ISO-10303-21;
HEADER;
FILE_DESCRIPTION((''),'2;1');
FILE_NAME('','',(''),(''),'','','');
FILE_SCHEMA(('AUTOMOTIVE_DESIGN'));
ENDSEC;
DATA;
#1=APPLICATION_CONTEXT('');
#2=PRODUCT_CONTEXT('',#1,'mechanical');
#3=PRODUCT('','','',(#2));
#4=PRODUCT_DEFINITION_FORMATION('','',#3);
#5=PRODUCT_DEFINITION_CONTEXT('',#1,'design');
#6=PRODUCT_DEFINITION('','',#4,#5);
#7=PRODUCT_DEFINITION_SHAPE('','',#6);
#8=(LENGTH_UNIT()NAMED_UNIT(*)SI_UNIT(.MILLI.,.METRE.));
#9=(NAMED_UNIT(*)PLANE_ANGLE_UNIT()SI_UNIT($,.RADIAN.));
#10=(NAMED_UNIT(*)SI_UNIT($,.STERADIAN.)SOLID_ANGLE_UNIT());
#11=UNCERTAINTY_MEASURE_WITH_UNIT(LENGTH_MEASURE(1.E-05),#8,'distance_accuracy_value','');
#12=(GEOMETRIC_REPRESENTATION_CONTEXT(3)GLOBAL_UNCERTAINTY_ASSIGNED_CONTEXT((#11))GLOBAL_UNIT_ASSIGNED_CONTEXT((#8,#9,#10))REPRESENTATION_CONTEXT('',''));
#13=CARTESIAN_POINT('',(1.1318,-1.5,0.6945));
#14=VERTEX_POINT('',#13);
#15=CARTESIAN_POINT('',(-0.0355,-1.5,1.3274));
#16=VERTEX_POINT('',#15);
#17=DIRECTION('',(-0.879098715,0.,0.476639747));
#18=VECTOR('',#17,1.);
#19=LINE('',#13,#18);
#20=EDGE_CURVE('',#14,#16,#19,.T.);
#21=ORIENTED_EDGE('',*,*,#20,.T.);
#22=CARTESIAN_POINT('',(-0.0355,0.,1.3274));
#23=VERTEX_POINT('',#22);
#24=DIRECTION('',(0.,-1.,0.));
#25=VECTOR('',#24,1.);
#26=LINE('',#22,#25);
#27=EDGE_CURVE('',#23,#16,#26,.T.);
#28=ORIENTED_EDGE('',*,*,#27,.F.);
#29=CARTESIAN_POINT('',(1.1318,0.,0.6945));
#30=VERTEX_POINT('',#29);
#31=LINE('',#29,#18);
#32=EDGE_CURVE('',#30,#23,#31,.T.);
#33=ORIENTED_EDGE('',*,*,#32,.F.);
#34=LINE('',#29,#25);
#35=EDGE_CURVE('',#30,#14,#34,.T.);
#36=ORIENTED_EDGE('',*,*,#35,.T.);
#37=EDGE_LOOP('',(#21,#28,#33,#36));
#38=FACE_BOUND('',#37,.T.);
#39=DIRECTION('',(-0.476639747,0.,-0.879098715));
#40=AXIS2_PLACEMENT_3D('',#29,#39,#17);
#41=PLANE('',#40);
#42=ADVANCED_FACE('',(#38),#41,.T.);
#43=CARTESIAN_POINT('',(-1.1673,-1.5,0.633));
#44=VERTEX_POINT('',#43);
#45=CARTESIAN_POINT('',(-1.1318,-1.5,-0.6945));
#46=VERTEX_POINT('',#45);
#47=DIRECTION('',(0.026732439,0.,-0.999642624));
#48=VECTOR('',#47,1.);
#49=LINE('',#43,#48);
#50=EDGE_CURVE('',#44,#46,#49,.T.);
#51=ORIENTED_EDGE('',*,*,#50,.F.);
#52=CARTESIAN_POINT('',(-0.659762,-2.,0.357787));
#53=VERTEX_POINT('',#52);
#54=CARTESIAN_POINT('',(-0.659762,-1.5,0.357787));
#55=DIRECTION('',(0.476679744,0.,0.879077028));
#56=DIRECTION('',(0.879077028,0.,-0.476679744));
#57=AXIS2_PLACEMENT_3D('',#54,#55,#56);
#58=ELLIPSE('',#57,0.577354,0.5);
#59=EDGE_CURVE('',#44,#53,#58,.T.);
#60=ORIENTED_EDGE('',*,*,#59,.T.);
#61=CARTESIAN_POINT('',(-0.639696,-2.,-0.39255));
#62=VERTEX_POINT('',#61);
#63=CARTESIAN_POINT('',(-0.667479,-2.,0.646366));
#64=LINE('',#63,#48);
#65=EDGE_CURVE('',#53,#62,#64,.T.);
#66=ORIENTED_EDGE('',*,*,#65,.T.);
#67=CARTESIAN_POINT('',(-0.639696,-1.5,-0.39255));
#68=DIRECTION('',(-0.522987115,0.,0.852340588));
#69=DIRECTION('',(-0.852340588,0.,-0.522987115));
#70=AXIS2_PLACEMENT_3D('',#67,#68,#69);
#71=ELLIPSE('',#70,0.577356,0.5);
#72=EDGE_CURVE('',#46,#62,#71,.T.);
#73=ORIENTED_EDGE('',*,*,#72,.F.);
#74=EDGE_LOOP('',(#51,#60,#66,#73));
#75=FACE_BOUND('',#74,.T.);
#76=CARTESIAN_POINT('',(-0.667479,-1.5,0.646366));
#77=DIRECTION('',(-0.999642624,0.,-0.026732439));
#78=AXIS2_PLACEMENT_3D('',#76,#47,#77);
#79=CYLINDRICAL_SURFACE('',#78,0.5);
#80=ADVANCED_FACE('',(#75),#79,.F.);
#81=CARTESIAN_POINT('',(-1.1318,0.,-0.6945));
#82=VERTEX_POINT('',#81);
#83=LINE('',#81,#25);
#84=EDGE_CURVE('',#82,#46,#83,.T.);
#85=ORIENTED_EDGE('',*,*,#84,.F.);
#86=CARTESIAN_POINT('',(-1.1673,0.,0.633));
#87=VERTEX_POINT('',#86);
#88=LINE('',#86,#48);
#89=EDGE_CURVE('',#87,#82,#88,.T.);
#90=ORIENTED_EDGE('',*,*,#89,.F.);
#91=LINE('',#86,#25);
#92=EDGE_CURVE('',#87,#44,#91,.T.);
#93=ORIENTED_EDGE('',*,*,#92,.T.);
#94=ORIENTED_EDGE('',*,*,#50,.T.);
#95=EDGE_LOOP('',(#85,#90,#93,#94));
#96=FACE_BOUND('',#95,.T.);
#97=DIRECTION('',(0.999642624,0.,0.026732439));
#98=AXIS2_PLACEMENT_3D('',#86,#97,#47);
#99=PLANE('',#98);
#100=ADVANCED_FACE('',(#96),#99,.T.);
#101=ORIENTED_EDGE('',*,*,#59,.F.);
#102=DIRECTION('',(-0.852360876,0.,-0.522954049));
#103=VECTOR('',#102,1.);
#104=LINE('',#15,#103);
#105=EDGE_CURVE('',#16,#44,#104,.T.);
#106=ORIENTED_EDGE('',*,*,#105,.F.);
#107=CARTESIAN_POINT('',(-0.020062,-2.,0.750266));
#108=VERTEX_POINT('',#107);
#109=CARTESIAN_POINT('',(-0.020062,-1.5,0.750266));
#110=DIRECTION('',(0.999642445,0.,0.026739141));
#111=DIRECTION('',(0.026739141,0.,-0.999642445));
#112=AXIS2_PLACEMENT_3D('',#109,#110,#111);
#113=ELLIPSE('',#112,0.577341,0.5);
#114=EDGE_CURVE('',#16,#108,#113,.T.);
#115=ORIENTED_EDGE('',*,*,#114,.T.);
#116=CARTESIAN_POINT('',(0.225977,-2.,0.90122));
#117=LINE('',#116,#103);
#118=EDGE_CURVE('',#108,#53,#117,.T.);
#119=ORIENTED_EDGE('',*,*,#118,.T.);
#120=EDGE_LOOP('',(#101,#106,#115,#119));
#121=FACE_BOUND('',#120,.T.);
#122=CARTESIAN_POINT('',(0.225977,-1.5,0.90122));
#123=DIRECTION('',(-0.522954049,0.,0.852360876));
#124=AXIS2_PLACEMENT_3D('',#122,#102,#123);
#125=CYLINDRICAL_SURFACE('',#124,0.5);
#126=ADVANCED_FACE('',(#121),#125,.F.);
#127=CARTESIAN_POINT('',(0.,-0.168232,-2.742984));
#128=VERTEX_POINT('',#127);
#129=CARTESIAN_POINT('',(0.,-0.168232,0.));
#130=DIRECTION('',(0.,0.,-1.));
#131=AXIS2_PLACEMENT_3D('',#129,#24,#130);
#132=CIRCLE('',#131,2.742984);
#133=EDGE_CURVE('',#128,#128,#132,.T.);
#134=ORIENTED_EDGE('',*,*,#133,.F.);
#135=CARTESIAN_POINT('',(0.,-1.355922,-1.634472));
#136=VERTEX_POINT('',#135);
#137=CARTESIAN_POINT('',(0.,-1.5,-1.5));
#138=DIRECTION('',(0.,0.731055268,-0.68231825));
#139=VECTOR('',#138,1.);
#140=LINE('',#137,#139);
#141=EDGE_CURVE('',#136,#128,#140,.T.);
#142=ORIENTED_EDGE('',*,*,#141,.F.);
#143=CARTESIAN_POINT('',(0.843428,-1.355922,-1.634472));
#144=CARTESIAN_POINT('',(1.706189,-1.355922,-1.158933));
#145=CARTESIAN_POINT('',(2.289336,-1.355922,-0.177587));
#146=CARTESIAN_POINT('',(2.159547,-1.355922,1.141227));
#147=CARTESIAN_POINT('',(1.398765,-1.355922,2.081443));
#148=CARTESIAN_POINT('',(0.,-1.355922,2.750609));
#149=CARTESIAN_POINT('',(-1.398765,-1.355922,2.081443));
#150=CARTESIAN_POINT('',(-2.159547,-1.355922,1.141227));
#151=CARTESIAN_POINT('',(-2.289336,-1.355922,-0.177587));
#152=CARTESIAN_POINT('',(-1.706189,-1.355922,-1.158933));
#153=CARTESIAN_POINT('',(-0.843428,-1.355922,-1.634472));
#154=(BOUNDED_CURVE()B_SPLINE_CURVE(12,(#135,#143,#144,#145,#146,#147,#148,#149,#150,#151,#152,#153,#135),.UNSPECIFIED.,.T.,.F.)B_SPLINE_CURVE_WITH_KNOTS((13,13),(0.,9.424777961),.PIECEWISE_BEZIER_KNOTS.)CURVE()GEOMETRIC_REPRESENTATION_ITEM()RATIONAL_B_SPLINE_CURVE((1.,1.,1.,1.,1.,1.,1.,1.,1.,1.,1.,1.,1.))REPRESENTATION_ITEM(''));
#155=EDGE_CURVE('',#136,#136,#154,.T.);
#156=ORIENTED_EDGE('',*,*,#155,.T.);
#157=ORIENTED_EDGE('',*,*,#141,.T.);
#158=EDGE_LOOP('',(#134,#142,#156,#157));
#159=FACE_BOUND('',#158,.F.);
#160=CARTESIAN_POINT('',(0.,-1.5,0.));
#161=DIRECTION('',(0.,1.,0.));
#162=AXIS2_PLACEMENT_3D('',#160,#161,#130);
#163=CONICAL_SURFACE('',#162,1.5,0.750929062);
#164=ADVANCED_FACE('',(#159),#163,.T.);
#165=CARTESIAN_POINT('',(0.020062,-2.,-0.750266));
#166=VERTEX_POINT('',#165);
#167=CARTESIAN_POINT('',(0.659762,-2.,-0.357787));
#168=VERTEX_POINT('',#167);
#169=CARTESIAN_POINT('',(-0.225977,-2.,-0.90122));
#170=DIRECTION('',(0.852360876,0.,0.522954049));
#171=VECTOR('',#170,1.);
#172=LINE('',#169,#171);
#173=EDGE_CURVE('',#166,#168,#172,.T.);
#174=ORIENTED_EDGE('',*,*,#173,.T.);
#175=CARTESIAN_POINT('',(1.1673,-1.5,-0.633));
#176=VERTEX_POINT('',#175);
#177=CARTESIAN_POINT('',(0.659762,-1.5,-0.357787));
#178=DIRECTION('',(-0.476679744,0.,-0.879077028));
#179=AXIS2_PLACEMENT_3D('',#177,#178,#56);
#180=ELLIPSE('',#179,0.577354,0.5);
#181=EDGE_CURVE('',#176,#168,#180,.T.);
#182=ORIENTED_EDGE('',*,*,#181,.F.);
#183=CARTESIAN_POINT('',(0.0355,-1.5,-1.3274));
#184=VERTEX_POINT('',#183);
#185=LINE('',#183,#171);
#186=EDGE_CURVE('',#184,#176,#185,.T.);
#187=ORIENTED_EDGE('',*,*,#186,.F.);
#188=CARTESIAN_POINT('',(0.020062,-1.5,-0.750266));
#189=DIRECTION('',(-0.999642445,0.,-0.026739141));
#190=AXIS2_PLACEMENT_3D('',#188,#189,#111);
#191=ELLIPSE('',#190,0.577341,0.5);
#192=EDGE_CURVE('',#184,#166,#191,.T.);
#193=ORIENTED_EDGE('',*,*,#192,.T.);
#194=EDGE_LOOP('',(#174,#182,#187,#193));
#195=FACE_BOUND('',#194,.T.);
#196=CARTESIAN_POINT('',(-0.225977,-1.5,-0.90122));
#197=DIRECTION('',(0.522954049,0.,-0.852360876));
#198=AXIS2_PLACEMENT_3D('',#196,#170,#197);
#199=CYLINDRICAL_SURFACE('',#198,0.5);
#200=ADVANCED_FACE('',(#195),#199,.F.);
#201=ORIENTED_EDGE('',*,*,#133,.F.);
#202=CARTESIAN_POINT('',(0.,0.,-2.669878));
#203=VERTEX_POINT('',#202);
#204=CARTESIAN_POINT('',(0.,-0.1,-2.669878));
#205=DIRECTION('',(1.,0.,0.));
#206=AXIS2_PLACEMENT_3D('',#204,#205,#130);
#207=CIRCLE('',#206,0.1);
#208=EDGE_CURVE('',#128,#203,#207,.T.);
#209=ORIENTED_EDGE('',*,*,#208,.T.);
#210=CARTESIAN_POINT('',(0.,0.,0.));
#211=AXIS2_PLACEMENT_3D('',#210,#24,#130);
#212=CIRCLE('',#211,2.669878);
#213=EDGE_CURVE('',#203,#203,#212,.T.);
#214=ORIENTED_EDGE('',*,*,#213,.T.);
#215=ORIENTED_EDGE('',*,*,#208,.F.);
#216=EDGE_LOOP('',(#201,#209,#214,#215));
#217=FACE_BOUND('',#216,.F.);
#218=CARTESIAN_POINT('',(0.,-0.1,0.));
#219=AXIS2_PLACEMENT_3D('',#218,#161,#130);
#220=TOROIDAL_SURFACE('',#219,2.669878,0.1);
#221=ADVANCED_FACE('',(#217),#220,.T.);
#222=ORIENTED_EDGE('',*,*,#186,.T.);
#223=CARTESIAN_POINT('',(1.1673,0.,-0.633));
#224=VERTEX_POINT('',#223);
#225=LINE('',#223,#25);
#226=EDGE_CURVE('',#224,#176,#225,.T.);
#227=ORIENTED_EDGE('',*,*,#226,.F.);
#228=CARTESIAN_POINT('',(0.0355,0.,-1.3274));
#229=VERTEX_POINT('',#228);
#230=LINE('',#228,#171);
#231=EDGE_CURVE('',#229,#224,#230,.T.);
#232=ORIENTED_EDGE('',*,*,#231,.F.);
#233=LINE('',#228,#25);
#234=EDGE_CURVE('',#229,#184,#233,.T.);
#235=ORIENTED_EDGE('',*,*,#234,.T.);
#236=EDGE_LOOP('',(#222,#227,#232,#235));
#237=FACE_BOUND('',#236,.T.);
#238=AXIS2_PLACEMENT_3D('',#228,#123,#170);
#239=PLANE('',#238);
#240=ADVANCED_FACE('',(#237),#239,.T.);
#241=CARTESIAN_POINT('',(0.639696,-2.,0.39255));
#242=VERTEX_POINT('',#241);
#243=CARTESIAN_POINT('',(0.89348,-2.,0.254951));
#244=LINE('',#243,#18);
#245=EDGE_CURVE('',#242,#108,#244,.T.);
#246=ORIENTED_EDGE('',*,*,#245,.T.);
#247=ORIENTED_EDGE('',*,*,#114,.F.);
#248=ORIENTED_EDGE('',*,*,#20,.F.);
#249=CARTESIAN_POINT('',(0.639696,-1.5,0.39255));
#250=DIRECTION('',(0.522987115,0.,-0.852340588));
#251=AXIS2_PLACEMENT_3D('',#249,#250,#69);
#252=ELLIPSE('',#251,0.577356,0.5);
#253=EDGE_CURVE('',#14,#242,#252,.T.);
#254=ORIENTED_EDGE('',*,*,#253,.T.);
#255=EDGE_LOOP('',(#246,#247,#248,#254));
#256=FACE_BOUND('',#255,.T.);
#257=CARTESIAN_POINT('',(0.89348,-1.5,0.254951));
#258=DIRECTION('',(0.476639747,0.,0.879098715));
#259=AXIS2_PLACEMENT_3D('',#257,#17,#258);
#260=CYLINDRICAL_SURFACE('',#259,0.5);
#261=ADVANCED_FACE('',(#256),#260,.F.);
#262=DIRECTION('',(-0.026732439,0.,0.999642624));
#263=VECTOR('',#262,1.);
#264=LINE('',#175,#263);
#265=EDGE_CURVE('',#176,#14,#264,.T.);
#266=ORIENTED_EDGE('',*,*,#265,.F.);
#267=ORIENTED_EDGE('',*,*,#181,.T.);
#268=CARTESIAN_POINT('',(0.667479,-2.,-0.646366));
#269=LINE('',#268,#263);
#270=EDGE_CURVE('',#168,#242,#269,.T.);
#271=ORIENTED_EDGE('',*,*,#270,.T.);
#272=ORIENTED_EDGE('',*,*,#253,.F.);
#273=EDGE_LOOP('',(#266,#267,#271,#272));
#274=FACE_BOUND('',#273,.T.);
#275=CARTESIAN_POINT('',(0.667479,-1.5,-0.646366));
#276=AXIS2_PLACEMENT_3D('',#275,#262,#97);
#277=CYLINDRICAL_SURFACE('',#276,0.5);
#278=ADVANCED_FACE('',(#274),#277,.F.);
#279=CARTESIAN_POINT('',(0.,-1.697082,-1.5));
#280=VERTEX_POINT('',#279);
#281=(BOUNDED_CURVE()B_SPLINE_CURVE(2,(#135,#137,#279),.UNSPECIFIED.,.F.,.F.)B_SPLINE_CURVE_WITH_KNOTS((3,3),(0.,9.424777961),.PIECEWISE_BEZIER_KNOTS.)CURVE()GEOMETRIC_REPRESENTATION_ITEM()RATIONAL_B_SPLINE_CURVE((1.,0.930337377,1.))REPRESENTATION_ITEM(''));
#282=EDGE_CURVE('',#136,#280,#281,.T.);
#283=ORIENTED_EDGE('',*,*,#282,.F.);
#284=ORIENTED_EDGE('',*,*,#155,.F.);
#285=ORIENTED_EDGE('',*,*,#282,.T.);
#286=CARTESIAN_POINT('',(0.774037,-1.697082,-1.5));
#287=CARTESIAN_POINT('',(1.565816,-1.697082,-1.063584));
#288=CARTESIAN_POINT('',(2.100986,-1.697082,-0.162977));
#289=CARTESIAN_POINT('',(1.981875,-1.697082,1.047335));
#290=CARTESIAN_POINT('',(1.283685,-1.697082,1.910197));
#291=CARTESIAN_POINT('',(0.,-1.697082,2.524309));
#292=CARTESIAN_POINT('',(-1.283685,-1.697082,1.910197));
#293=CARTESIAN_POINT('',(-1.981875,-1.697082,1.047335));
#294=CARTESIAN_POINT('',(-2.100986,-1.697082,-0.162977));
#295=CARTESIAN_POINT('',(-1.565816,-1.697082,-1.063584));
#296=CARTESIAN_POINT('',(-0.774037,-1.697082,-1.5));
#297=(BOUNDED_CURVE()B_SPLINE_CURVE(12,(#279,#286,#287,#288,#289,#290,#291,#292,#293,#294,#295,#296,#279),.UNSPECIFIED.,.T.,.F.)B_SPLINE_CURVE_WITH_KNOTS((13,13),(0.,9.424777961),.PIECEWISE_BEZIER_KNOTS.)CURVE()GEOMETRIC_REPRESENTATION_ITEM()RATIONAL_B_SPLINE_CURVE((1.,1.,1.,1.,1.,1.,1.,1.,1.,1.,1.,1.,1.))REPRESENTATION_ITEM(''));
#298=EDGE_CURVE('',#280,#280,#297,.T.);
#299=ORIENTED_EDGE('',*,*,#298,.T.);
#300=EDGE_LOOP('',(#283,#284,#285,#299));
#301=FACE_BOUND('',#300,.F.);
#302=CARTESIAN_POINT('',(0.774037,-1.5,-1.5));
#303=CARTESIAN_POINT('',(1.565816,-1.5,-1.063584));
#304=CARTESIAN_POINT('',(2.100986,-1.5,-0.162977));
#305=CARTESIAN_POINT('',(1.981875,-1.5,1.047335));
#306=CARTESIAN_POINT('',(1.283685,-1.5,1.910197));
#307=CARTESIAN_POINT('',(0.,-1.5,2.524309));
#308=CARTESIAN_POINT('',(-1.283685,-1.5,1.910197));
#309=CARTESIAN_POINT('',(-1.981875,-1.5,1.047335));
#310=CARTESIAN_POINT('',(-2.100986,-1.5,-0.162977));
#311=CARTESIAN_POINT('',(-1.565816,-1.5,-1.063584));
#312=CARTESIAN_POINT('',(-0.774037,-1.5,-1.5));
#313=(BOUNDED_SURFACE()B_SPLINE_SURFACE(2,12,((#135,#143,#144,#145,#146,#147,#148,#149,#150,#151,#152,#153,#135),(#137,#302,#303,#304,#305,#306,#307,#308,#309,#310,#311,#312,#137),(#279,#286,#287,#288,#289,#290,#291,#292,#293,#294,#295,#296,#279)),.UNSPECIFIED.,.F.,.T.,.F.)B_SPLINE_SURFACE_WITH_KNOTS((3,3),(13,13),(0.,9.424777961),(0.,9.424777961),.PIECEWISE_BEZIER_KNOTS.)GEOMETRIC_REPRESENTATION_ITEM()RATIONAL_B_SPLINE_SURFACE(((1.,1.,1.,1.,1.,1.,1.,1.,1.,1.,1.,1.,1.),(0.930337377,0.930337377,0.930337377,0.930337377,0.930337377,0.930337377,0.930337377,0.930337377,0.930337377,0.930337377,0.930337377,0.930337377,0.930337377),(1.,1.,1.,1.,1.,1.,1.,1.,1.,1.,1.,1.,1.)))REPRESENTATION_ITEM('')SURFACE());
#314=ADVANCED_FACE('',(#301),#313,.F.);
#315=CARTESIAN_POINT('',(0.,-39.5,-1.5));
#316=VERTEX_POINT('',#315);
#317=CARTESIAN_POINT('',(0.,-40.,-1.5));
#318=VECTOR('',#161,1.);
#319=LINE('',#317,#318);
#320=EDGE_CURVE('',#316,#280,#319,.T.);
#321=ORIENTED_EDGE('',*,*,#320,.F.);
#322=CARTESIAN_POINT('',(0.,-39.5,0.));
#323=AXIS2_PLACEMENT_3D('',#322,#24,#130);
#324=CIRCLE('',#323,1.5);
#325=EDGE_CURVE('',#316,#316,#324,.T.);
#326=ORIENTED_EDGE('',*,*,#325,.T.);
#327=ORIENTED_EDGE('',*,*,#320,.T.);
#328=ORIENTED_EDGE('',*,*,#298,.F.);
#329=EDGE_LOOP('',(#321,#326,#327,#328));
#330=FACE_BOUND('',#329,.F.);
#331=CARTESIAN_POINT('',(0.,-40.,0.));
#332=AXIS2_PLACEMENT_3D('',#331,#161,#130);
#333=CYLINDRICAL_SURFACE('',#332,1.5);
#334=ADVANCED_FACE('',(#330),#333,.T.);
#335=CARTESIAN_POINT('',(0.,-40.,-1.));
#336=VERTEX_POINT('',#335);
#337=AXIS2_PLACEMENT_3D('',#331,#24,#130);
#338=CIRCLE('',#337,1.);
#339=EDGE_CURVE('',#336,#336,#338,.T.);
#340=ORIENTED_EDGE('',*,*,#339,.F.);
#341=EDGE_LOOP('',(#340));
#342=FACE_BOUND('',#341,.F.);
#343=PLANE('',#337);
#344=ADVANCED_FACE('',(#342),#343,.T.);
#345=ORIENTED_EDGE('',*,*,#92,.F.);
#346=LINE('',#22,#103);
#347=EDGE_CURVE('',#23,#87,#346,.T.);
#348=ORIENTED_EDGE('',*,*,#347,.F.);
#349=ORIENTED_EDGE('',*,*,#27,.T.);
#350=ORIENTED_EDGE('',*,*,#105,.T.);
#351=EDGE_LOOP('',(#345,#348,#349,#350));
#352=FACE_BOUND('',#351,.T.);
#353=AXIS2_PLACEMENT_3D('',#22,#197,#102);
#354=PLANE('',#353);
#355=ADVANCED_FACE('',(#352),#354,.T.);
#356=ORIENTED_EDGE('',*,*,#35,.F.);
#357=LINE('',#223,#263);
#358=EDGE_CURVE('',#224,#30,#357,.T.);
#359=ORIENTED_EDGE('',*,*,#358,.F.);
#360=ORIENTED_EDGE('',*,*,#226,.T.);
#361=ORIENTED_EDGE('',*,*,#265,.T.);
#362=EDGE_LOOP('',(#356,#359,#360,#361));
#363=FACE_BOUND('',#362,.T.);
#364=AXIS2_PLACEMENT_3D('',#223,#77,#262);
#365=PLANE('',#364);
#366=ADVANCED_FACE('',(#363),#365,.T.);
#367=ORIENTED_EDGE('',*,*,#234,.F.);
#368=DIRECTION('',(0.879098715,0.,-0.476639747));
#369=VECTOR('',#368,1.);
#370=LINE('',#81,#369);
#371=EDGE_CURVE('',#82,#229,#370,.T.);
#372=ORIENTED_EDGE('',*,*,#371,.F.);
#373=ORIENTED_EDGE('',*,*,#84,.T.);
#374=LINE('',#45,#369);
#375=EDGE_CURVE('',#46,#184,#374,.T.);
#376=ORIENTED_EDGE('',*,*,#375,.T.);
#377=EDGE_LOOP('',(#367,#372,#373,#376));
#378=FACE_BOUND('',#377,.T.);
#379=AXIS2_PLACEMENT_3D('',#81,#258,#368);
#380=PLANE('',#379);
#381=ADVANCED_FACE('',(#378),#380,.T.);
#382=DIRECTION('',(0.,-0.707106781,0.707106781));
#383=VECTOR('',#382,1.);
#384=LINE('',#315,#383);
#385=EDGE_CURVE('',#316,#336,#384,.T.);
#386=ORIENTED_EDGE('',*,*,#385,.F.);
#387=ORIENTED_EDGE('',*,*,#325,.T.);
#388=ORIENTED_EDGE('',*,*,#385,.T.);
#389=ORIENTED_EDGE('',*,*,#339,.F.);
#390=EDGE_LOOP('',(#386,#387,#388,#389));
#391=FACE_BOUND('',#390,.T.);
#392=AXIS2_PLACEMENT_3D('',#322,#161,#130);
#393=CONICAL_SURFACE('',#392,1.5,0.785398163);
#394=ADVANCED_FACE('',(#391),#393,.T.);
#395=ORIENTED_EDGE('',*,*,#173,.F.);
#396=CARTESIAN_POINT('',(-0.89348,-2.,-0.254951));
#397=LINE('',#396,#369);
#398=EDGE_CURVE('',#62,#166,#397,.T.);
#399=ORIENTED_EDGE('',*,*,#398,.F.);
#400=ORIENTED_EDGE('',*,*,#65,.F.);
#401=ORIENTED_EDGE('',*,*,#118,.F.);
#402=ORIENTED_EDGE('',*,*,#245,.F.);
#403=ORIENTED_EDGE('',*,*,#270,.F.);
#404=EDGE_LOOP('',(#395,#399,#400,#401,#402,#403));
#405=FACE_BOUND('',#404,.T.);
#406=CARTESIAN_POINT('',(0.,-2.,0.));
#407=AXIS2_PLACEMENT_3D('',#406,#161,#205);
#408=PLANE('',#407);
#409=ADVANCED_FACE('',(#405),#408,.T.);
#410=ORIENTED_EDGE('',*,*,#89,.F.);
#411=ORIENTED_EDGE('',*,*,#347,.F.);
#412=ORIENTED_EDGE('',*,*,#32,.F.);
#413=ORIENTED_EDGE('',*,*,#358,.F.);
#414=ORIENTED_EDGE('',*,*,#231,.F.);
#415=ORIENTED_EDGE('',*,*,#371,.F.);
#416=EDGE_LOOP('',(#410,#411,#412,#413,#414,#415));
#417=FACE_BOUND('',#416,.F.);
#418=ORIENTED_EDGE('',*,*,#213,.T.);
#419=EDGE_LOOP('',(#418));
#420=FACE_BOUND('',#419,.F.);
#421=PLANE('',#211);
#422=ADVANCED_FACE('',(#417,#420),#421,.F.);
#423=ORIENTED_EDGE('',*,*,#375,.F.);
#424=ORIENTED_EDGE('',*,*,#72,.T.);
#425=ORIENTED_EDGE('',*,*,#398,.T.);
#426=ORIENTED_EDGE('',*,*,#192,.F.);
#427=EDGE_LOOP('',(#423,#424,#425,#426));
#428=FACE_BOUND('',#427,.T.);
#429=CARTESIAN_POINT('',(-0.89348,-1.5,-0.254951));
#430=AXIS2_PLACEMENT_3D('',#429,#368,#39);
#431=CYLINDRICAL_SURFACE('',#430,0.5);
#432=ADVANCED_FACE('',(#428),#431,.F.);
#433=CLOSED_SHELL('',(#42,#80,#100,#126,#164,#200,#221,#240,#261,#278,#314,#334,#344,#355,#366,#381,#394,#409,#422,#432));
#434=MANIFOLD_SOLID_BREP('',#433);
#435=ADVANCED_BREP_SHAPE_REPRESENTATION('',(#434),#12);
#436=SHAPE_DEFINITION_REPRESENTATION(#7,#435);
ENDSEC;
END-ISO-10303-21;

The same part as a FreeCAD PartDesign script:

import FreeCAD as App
import Part
import Sketcher
from FreeCAD import Vector
Q = App.Units.Quantity


def edges_at(feature, points):
    """Names of the edges that pass closest to the given points."""
    edges = feature.Shape.Edges
    near = lambda p: min(range(len(edges)), key=lambda i: edges[i].distToShape(Part.Vertex(*p))[0])
    return sorted({f"Edge{near(p) + 1}" for p in points})


def add_polygon(sketch, points):
    """Adds a closed chain of lines whose ends are joined by coincident constraints."""
    first, n = sketch.GeometryCount, len(points)
    for a, b in zip(points, points[1:] + points[:1]):
        sketch.addGeometry(Part.LineSegment(App.Vector(*a, 0), App.Vector(*b, 0)), False)
    for i in range(n):
        sketch.addConstraint(Sketcher.Constraint("Coincident", first + i, 2, first + (i + 1) % n, 1))

doc = App.newDocument("Part")
body = doc.addObject("PartDesign::Body", "Body")

# Sketch on YZ plane
sketch1 = body.newObject("Sketcher::SketchObject", "Sketch")
sketch1.AttachmentSupport = (doc.getObject("YZ_Plane"), [""])
sketch1.MapMode = "FlatFace"
add_polygon(sketch1, [(-1.5, -1.5), (0, -2.9), (0, 0), (-40, 0), (-40, -1.5)])  # lines 0-4
sketch1.addConstraint(Sketcher.Constraint("Vertical", 1))
sketch1.addConstraint(Sketcher.Constraint("Horizontal", 2))
sketch1.addConstraint(Sketcher.Constraint("Vertical", 3))
sketch1.addConstraint(Sketcher.Constraint("Horizontal", 4))
sketch1.addConstraint(Sketcher.Constraint("Coincident", 1, 2, -1, 1))
sketch1.addConstraint(Sketcher.Constraint("DistanceX", 2, 2, 2, 1, 40.0))
sketch1.addConstraint(Sketcher.Constraint("DistanceY", 3, 2, 3, 1, 1.5))
sketch1.addConstraint(Sketcher.Constraint("DistanceX", 4, 2, -1, 1, 1.5))
sketch1.addConstraint(Sketcher.Constraint("DistanceY", 1, 1, 1, 2, 2.9))
revolution = body.newObject("PartDesign::Revolution", "Revolution")
revolution.Profile = sketch1
revolution.ReferenceAxis = (sketch1, ["H_Axis"])
revolution.Angle = 360

# Sketch on XZ plane
sketch2 = body.newObject("Sketcher::SketchObject", "Sketch001")
sketch2.AttachmentSupport = (doc.getObject("XZ_Plane"), [""])
sketch2.MapMode = "FlatFace"
add_polygon(sketch2, [(-1.1, -0.7), (-1.2, 0.6), (0, 1.3), (1.1, 0.7), (1.2, -0.6), (0, -1.3)])  # lines 0-5
sketch2.addConstraint(Sketcher.Constraint("Symmetric", 0, 2, 3, 2, -1, 1))
sketch2.addConstraint(Sketcher.Constraint("Symmetric", 1, 2, 4, 2, -1, 1))
sketch2.addConstraint(Sketcher.Constraint("Symmetric", 2, 2, 5, 2, -1, 1))
sketch2.addConstraint(Sketcher.Constraint("Equal", 0, 1))
sketch2.addConstraint(Sketcher.Constraint("Equal", 1, 2))
sketch2.addConstraint(Sketcher.Constraint("Angle", 1, Q("31.5306 deg")))
sketch2.addConstraint(Sketcher.Constraint("Distance", 0, 1.328))
sketch2.addConstraint(Sketcher.Constraint("DistanceY", -1, 1, 0, 2, 0.633))
sketch2.addConstraint(Sketcher.Constraint("DistanceY", 2, 2, 1, 2, 0.633))
pocket1 = body.newObject("PartDesign::Pocket", "Pocket")
pocket1.Profile = sketch2
pocket1.Length = 2
pocket1.Reversed = True
doc.recompute()

fillet = body.newObject("PartDesign::Fillet", "Fillet")
fillet.Base = (pocket1, edges_at(pocket1, [
    (-1.15, -2, -0.031),
    (-0.601, -2, 0.98),
    (-0.548, -2, -1.011),
    (0.601, -2, -0.98),
    (0.548, -2, 1.011),
    (1.15, -2, 0.031),
]))
fillet.Radius = 0.5
doc.recompute()

fillet2 = body.newObject("PartDesign::Fillet", "Fillet001")
fillet2.Base = (fillet, edges_at(fillet, [(0, -1.5, 1.5)]))
fillet2.Radius = 0.5
doc.recompute()

fillet3 = body.newObject("PartDesign::Fillet", "Fillet002")
fillet3.Base = (fillet2, edges_at(fillet2, [(0, 0, 2.9)]))
fillet3.Radius = 0.1
doc.recompute()

chamfer = body.newObject("PartDesign::Chamfer", "Chamfer")
chamfer.Base = (fillet3, edges_at(fillet3, [(0, -40, 1.5)]))
chamfer.Size = 0.5

doc.recompute()
